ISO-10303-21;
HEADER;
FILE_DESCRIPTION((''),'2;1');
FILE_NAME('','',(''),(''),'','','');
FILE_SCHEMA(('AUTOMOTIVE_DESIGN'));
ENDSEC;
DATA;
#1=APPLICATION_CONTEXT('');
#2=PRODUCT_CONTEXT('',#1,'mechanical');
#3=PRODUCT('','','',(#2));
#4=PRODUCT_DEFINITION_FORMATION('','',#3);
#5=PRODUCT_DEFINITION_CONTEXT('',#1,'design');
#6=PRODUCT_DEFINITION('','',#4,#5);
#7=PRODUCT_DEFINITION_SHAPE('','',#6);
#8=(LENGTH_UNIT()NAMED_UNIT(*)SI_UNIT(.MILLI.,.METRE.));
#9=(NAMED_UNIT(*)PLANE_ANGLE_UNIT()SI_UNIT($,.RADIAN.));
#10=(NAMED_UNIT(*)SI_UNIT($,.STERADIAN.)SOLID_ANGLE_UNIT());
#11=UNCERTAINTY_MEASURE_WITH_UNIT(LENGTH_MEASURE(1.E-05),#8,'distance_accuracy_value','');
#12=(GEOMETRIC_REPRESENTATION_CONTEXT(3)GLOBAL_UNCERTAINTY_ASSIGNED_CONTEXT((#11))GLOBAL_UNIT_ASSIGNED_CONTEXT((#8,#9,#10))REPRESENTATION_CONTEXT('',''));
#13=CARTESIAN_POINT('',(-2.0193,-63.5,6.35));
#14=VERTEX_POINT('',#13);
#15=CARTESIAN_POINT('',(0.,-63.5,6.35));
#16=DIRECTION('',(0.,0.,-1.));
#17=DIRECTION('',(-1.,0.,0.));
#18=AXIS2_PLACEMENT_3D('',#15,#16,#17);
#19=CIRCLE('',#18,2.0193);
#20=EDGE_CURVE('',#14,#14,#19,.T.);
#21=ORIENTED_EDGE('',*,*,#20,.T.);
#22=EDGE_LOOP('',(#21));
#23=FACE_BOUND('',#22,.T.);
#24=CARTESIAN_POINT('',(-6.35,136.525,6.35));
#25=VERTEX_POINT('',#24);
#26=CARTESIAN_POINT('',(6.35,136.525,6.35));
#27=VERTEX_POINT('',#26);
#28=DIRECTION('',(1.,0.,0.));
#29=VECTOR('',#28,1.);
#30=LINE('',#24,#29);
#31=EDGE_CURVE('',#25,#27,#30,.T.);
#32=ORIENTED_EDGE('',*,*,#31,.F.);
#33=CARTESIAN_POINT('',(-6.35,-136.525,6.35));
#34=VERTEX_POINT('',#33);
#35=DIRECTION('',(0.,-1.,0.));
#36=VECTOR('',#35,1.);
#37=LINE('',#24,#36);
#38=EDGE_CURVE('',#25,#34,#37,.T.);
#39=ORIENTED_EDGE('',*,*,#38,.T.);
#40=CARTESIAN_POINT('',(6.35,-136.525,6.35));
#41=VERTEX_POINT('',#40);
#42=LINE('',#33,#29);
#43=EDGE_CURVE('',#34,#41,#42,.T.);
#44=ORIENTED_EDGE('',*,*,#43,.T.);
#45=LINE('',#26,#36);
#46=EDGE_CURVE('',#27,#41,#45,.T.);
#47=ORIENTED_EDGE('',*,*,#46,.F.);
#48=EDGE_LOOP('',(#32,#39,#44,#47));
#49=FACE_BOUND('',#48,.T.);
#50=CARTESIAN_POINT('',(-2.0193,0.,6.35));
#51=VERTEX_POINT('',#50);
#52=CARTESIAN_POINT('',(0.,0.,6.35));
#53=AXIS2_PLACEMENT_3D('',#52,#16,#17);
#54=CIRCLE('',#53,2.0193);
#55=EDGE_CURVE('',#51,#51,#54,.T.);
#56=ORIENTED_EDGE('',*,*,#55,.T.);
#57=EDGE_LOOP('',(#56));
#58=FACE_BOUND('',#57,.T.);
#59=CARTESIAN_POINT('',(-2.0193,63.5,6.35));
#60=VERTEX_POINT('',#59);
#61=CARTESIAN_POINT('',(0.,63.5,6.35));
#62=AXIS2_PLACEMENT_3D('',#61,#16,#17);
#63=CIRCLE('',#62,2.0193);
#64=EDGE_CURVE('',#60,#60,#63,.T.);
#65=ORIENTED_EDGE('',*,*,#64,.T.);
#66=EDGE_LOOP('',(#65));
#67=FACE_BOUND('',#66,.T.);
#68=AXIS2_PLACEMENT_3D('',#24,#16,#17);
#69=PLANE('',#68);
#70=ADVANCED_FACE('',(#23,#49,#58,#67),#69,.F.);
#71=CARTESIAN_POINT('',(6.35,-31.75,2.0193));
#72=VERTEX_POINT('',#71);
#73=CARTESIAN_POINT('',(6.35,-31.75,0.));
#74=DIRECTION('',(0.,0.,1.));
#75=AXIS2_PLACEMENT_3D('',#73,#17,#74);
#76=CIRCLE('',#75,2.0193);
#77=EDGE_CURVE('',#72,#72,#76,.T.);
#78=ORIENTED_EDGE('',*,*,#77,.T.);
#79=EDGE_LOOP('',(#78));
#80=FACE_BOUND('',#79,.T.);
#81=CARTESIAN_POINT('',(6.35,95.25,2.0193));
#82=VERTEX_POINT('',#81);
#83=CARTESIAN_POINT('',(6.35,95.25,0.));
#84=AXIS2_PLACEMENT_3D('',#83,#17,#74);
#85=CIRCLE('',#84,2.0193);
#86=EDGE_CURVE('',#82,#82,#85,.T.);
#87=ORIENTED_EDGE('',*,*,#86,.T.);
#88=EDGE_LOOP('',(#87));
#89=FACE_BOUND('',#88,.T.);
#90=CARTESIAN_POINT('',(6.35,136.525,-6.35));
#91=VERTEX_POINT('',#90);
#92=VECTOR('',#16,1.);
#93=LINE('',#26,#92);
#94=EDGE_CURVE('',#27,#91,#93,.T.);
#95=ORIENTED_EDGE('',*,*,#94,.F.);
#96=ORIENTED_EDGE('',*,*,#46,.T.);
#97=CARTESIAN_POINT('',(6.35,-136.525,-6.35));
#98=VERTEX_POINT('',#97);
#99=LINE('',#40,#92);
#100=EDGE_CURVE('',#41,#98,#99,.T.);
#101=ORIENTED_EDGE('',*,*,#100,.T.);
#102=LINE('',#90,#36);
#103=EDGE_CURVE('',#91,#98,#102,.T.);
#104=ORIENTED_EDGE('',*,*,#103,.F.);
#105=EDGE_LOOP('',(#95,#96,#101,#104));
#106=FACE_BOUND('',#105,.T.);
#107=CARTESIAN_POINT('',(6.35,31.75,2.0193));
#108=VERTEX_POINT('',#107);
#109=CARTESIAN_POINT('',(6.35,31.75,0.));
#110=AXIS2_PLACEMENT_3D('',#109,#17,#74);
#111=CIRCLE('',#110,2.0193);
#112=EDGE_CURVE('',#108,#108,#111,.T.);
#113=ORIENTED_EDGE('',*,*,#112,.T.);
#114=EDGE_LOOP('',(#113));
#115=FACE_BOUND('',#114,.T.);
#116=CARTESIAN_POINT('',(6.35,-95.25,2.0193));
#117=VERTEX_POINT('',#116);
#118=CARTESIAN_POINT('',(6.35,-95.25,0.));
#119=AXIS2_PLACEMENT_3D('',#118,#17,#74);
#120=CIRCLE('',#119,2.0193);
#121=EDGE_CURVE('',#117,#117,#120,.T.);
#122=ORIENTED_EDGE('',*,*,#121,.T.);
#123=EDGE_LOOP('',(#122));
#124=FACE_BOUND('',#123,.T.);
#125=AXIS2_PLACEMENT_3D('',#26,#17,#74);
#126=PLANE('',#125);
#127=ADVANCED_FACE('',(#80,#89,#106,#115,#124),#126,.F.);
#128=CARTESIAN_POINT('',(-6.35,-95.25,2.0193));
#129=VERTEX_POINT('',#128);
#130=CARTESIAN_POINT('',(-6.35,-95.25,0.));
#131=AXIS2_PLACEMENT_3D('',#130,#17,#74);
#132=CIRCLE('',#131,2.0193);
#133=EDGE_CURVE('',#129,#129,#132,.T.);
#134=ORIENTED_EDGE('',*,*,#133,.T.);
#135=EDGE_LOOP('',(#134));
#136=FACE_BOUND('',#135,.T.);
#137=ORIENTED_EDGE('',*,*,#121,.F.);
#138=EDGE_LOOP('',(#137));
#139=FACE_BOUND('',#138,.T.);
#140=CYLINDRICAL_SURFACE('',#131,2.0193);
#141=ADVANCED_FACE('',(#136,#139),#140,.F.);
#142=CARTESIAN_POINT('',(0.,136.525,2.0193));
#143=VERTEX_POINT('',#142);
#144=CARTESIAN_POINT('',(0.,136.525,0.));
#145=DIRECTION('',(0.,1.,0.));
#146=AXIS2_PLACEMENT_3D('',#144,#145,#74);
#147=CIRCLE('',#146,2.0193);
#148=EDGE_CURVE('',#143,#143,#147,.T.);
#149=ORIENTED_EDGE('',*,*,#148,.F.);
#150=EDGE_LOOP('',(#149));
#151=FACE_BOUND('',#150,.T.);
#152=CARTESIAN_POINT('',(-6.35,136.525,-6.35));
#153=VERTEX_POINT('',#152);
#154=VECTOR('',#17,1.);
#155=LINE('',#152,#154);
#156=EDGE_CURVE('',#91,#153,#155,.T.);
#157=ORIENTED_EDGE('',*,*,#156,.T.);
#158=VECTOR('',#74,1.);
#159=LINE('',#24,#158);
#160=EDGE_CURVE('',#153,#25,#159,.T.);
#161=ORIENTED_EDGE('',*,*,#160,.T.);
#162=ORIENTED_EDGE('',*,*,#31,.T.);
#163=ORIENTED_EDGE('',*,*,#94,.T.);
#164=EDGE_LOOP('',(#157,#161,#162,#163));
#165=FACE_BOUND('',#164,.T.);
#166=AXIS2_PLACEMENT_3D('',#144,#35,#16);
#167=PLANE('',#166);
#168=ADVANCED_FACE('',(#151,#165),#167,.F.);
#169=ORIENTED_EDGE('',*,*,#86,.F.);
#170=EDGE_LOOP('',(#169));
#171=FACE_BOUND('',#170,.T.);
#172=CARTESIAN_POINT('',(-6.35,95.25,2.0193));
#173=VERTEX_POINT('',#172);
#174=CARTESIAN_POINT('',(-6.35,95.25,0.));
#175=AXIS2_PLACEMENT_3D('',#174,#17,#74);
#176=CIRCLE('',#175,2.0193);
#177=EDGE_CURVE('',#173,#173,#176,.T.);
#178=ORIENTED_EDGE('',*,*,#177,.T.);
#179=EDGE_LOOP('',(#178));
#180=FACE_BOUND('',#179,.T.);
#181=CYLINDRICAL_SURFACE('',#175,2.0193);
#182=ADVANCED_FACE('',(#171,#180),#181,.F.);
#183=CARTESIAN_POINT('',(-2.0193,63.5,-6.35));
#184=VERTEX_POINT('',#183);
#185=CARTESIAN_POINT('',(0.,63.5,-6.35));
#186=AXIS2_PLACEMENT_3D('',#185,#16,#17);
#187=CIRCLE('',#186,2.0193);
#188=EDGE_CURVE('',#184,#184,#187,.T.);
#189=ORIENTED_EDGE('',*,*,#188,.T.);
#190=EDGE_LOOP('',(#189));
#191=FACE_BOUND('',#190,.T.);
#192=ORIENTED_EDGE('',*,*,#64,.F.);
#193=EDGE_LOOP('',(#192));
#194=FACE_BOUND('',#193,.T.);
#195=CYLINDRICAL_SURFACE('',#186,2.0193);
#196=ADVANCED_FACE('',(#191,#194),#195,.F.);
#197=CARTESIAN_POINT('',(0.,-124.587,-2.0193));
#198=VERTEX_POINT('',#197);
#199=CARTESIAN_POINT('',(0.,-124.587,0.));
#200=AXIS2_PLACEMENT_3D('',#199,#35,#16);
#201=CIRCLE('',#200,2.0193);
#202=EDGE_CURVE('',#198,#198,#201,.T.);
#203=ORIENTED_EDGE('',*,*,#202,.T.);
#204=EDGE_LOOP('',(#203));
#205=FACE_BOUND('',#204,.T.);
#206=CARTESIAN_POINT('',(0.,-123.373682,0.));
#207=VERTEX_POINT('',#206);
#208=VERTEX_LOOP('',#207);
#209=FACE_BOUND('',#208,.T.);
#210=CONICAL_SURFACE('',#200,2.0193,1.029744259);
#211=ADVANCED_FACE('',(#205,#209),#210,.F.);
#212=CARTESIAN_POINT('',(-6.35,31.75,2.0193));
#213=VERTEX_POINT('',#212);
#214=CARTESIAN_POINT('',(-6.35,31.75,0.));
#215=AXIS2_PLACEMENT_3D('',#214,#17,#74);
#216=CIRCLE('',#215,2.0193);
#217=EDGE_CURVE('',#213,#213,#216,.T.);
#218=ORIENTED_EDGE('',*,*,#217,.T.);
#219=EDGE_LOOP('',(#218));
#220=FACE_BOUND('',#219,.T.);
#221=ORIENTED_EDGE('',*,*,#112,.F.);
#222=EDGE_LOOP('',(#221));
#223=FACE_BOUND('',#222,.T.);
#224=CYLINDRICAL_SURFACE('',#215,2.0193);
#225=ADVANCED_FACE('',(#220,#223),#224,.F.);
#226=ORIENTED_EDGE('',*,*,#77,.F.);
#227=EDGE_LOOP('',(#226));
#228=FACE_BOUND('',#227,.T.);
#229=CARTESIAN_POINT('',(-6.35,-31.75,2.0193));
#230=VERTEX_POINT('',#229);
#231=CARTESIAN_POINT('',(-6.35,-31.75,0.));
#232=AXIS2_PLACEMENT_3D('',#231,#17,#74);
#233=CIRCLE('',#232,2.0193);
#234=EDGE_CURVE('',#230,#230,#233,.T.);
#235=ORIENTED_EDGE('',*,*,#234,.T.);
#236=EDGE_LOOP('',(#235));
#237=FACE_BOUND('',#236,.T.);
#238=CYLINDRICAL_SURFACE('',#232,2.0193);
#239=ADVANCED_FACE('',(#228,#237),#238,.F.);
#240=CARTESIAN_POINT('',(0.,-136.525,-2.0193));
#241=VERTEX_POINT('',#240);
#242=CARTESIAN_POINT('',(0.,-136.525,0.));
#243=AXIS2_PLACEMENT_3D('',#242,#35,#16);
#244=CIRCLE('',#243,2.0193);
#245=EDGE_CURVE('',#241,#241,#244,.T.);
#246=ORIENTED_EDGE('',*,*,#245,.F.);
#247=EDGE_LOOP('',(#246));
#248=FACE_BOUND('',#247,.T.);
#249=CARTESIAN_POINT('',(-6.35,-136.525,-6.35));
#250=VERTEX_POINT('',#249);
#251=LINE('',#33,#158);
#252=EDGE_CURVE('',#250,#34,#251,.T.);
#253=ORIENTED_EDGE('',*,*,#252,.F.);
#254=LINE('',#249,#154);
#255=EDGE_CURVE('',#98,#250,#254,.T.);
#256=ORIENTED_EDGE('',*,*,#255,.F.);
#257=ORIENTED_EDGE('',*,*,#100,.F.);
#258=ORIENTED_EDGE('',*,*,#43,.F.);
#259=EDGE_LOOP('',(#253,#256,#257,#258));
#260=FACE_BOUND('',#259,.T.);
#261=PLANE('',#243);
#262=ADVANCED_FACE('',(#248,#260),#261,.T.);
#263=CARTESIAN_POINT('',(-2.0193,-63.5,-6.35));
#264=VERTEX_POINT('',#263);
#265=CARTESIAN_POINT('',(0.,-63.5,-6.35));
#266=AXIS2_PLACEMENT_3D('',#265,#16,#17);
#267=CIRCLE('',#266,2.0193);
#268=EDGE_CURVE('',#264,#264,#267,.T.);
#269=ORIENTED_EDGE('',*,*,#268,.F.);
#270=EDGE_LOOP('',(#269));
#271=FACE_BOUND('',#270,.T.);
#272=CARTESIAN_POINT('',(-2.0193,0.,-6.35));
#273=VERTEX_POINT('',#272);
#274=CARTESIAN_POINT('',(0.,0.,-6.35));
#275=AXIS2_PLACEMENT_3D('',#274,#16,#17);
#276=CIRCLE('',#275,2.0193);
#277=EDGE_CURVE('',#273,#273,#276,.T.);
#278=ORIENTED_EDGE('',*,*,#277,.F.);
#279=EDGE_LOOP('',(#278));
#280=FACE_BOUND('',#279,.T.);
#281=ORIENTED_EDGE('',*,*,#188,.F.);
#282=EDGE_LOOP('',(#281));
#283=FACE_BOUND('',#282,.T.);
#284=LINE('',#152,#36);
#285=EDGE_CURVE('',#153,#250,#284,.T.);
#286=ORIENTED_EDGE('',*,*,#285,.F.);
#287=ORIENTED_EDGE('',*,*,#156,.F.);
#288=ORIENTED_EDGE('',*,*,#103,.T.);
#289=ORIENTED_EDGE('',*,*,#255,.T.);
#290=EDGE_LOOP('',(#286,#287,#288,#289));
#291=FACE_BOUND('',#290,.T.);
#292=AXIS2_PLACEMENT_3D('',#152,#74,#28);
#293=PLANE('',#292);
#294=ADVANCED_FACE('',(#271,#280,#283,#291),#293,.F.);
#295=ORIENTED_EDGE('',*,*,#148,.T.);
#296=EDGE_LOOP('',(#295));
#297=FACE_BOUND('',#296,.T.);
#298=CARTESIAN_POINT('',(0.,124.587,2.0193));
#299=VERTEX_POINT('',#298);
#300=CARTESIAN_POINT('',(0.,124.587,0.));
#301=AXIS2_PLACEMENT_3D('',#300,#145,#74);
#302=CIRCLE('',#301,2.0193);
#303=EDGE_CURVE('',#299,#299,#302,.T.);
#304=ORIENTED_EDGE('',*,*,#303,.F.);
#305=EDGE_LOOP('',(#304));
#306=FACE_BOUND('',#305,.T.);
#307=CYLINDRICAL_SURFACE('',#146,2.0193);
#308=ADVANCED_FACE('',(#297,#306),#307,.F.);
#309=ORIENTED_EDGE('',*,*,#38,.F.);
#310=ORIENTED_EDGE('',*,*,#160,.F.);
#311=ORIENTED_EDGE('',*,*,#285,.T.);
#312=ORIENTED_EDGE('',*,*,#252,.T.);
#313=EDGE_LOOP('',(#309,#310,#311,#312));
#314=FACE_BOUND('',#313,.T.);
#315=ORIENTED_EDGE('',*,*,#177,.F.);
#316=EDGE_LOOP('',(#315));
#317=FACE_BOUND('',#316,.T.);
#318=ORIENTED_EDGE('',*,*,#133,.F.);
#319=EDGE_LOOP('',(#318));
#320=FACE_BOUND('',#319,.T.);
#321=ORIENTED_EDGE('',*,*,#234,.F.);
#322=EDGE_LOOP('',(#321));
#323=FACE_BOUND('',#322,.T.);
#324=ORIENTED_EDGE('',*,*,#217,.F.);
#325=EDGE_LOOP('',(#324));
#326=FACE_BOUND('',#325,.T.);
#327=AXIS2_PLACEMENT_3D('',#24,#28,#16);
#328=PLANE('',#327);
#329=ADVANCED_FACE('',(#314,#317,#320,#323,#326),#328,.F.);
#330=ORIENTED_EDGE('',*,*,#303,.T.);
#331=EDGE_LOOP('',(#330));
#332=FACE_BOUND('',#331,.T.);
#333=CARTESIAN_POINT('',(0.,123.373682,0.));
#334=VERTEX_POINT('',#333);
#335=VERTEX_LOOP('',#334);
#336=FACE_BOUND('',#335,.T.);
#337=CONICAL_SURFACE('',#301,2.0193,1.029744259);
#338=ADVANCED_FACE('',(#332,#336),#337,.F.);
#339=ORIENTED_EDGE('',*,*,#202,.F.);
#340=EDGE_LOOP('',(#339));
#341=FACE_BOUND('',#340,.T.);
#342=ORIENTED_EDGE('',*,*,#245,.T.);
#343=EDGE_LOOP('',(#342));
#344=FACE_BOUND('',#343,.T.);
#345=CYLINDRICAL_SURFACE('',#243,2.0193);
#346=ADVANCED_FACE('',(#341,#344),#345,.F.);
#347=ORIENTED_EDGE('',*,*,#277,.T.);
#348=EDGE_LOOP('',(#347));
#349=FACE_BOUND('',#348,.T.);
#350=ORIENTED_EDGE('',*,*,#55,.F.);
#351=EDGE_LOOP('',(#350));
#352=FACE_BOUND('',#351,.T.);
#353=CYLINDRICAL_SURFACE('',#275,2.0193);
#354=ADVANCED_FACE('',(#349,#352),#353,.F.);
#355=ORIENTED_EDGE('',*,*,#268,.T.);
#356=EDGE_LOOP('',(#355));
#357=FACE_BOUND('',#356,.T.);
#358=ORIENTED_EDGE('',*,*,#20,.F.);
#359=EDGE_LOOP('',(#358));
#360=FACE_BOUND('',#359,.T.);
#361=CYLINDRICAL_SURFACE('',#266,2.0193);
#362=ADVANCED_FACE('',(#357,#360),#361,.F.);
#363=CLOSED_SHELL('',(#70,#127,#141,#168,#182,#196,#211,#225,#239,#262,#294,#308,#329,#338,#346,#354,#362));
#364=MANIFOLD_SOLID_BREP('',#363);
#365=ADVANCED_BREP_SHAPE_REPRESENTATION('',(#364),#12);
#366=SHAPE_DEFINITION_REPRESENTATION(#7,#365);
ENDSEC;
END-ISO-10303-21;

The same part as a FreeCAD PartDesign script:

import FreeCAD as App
import Part
import Sketcher
from FreeCAD import Vector
Q = App.Units.Quantity

doc = App.newDocument("Part")
body = doc.addObject("PartDesign::Body", "Body")

# Sketch on XZ plane
sketch1 = body.newObject("Sketcher::SketchObject", "Sketch")
sketch1.AttachmentSupport = (doc.getObject("XZ_Plane"), [""])
sketch1.MapMode = "FlatFace"
sketch1.addGeometry([
    Part.LineSegment(Vector(-6, -6, 0), Vector(-6, 6, 0)),
    Part.LineSegment(Vector(-6, 6, 0), Vector(6, 6, 0)),
    Part.LineSegment(Vector(6, 6, 0), Vector(6, -6, 0)),
    Part.LineSegment(Vector(6, -6, 0), Vector(-6, -6, 0)),
], False)
sketch1.addConstraint([
    Sketcher.Constraint("Coincident", 0, 2, 1, 1),
    Sketcher.Constraint("Coincident", 1, 2, 2, 1),
    Sketcher.Constraint("Coincident", 2, 2, 3, 1),
    Sketcher.Constraint("Coincident", 3, 2, 0, 1),
    Sketcher.Constraint("Vertical", 0),
    Sketcher.Constraint("Horizontal", 1),
    Sketcher.Constraint("Vertical", 2),
    Sketcher.Constraint("Horizontal", 3),
    Sketcher.Constraint("Symmetric", 0, 2, 2, 2, -1, 1),
    Sketcher.Constraint("Equal", 3, 0),
    Sketcher.Constraint("DistanceX", 1, 1, 1, 2, Q("0.5 in")),
])
pad1 = body.newObject("PartDesign::Pad", "Pad")
pad1.Profile = sketch1
pad1.Length = Q("10.75 in")
pad1.Midplane = True

# Sketch on YZ plane
sketch2 = body.newObject("Sketcher::SketchObject", "Sketch001")
sketch2.AttachmentSupport = (doc.getObject("YZ_Plane"), [""])
sketch2.MapMode = "FlatFace"
sketch2.addGeometry([
    Part.LineSegment(Vector(-123.4, 0, 0), Vector(-136.5, 0, 0)),
    Part.LineSegment(Vector(-136.5, 0, 0), Vector(-136.5, -2, 0)),
    Part.LineSegment(Vector(-136.5, -2, 0), Vector(-124.6, -2, 0)),
    Part.LineSegment(Vector(-124.6, -2, 0), Vector(-123.4, 0, 0)),
], False)
sketch2.addConstraint([
    Sketcher.Constraint("Coincident", 0, 2, 1, 1),
    Sketcher.Constraint("Coincident", 1, 2, 2, 1),
    Sketcher.Constraint("Coincident", 2, 2, 3, 1),
    Sketcher.Constraint("Coincident", 3, 2, 0, 1),
    Sketcher.Constraint("Horizontal", 0),
    Sketcher.Constraint("Vertical", 1),
    Sketcher.Constraint("Horizontal", 2),
    Sketcher.Constraint("PointOnObject", 0, 2, -1),
    Sketcher.Constraint("Angle", 3, Q("59 deg")),
    Sketcher.Constraint("DistanceX", 2, 1, 2, 2, Q("0.47 in")),
    Sketcher.Constraint("DistanceY", 1, 2, 1, 1, Q("0.0795 in")),
    Sketcher.Constraint("DistanceX", 0, 2, -1, 1, Q("5.375 in")),
])
groove = body.newObject("PartDesign::Groove", "Groove")
groove.Profile = sketch2
groove.ReferenceAxis = (sketch2, ["H_Axis"])
groove.Angle = 360
doc.recompute()

mirrored = body.newObject("PartDesign::Mirrored", "Mirrored")
mirrored.Originals = [groove]
mirrored.MirrorPlane = (doc.getObject("XZ_Plane"), [""])
body.Tip = mirrored

# Sketch on XY plane
sketch3 = body.newObject("Sketcher::SketchObject", "Sketch002")
sketch3.AttachmentSupport = (doc.getObject("XY_Plane"), [""])
sketch3.MapMode = "FlatFace"
sketch3.AttachmentOffset = App.Placement(Vector(0, 0, -0.25 * 25.4), App.Rotation())
sketch3.addGeometry([
    Part.Circle(Vector(0, 63.5, 0), Vector(0, 0, 1), 2),
    Part.Circle(Vector(0, 0, 0), Vector(0, 0, 1), 2),
    Part.Circle(Vector(0, -63.5, 0), Vector(0, 0, 1), 2),
], False)
sketch3.addConstraint([
    Sketcher.Constraint("Coincident", 1, 3, -1, 1),
    Sketcher.Constraint("Equal", 0, 1),
    Sketcher.Constraint("Equal", 1, 2),
    Sketcher.Constraint("Symmetric", 0, 3, 2, 3, -1, 1),
    Sketcher.Constraint("PointOnObject", 0, 3, -2),
    Sketcher.Constraint("Diameter", 0, Q("0.159 in")),
    Sketcher.Constraint("DistanceY", 2, 3, 0, 3, Q("5 in")),
])
doc.recompute()
hole = body.newObject("PartDesign::Hole", "Hole")
hole.Profile = sketch3
hole.ThreadType = "None"
hole.Diameter = Q("0.159 in")
hole.DepthType = "ThroughAll"
hole.Reversed = True

# Sketch on YZ plane
sketch4 = body.newObject("Sketcher::SketchObject", "Sketch003")
sketch4.AttachmentSupport = (doc.getObject("YZ_Plane"), [""])
sketch4.MapMode = "FlatFace"
sketch4.AttachmentOffset = App.Placement(Vector(0, 0, -0.25 * 25.4), App.Rotation())
sketch4.addGeometry([
    Part.Circle(Vector(95.2, 0, 0), Vector(0, 0, 1), 2),
    Part.Circle(Vector(31.8, 0, 0), Vector(0, 0, 1), 2),
    Part.Circle(Vector(-31.8, 0, 0), Vector(0, 0, 1), 2),
    Part.Circle(Vector(-95.2, 0, 0), Vector(0, 0, 1), 2),
], False)
sketch4.addConstraint([
    Sketcher.Constraint("Equal", 0, 1),
    Sketcher.Constraint("Equal", 1, 2),
    Sketcher.Constraint("Equal", 2, 3),
    Sketcher.Constraint("Symmetric", 1, 3, 2, 3, -1, 1),
    Sketcher.Constraint("Symmetric", 0, 3, 3, 3, -1, 1),
    Sketcher.Constraint("PointOnObject", 0, 3, -1),
    Sketcher.Constraint("PointOnObject", 1, 3, -1),
    Sketcher.Constraint("Diameter", 0, Q("0.159 in")),
    Sketcher.Constraint("DistanceX", 2, 3, 0, 3, Q("5 in")),
    Sketcher.Constraint("DistanceX", 1, 3, 0, 3, Q("2.5 in")),
])
doc.recompute()
hole2 = body.newObject("PartDesign::Hole", "Hole001")
hole2.Profile = sketch4
hole2.ThreadType = "None"
hole2.Diameter = Q("0.159 in")
hole2.DepthType = "ThroughAll"
hole2.Reversed = True

doc.recompute()
